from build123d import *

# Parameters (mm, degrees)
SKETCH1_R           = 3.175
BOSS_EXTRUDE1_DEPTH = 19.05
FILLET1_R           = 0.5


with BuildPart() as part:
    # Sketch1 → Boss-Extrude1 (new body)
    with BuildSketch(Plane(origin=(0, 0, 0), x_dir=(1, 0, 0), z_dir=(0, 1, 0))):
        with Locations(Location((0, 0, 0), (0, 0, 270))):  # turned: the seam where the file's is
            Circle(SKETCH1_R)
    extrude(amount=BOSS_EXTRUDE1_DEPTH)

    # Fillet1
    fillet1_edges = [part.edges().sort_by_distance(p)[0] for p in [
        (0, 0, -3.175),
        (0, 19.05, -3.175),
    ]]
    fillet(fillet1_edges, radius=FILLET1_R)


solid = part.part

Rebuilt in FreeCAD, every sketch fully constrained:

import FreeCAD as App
import Part
import Sketcher

V = App.Vector
Q = App.Units.Quantity


def edges_at(feature, points):
    """Names of the edges that pass closest to the given points."""
    edges = feature.Shape.Edges
    near = lambda p: min(range(len(edges)), key=lambda i: edges[i].distToShape(Part.Vertex(*p))[0])
    return sorted({f"Edge{near(p) + 1}" for p in points})

doc = App.newDocument("Part")
body = doc.addObject("PartDesign::Body", "Body")

# Sketch on XZ plane
sketch1 = body.newObject("Sketcher::SketchObject", "Sketch")
sketch1.AttachmentSupport = (doc.getObject("XZ_Plane"), [""])
sketch1.MapMode = "FlatFace"
sketch1.addGeometry(Part.Circle(V(0, 0, 0), V(0, 0, 1), 3.2), False)
sketch1.addConstraint([
    Sketcher.Constraint("Coincident", 0, 3, -1, 1),
    Sketcher.Constraint("Diameter", 0, Q("0.25 in")),
])
pad1 = body.newObject("PartDesign::Pad", "Pad")
pad1.Profile = sketch1
pad1.Length = Q("0.75 in")
pad1.Reversed = True
doc.recompute()

fillet = body.newObject("PartDesign::Fillet", "Fillet")
fillet.Base = (pad1, edges_at(pad1, [(0, 0, -3.175), (0, 19.05, -3.175)]))
fillet.Radius = 0.5

doc.recompute()
